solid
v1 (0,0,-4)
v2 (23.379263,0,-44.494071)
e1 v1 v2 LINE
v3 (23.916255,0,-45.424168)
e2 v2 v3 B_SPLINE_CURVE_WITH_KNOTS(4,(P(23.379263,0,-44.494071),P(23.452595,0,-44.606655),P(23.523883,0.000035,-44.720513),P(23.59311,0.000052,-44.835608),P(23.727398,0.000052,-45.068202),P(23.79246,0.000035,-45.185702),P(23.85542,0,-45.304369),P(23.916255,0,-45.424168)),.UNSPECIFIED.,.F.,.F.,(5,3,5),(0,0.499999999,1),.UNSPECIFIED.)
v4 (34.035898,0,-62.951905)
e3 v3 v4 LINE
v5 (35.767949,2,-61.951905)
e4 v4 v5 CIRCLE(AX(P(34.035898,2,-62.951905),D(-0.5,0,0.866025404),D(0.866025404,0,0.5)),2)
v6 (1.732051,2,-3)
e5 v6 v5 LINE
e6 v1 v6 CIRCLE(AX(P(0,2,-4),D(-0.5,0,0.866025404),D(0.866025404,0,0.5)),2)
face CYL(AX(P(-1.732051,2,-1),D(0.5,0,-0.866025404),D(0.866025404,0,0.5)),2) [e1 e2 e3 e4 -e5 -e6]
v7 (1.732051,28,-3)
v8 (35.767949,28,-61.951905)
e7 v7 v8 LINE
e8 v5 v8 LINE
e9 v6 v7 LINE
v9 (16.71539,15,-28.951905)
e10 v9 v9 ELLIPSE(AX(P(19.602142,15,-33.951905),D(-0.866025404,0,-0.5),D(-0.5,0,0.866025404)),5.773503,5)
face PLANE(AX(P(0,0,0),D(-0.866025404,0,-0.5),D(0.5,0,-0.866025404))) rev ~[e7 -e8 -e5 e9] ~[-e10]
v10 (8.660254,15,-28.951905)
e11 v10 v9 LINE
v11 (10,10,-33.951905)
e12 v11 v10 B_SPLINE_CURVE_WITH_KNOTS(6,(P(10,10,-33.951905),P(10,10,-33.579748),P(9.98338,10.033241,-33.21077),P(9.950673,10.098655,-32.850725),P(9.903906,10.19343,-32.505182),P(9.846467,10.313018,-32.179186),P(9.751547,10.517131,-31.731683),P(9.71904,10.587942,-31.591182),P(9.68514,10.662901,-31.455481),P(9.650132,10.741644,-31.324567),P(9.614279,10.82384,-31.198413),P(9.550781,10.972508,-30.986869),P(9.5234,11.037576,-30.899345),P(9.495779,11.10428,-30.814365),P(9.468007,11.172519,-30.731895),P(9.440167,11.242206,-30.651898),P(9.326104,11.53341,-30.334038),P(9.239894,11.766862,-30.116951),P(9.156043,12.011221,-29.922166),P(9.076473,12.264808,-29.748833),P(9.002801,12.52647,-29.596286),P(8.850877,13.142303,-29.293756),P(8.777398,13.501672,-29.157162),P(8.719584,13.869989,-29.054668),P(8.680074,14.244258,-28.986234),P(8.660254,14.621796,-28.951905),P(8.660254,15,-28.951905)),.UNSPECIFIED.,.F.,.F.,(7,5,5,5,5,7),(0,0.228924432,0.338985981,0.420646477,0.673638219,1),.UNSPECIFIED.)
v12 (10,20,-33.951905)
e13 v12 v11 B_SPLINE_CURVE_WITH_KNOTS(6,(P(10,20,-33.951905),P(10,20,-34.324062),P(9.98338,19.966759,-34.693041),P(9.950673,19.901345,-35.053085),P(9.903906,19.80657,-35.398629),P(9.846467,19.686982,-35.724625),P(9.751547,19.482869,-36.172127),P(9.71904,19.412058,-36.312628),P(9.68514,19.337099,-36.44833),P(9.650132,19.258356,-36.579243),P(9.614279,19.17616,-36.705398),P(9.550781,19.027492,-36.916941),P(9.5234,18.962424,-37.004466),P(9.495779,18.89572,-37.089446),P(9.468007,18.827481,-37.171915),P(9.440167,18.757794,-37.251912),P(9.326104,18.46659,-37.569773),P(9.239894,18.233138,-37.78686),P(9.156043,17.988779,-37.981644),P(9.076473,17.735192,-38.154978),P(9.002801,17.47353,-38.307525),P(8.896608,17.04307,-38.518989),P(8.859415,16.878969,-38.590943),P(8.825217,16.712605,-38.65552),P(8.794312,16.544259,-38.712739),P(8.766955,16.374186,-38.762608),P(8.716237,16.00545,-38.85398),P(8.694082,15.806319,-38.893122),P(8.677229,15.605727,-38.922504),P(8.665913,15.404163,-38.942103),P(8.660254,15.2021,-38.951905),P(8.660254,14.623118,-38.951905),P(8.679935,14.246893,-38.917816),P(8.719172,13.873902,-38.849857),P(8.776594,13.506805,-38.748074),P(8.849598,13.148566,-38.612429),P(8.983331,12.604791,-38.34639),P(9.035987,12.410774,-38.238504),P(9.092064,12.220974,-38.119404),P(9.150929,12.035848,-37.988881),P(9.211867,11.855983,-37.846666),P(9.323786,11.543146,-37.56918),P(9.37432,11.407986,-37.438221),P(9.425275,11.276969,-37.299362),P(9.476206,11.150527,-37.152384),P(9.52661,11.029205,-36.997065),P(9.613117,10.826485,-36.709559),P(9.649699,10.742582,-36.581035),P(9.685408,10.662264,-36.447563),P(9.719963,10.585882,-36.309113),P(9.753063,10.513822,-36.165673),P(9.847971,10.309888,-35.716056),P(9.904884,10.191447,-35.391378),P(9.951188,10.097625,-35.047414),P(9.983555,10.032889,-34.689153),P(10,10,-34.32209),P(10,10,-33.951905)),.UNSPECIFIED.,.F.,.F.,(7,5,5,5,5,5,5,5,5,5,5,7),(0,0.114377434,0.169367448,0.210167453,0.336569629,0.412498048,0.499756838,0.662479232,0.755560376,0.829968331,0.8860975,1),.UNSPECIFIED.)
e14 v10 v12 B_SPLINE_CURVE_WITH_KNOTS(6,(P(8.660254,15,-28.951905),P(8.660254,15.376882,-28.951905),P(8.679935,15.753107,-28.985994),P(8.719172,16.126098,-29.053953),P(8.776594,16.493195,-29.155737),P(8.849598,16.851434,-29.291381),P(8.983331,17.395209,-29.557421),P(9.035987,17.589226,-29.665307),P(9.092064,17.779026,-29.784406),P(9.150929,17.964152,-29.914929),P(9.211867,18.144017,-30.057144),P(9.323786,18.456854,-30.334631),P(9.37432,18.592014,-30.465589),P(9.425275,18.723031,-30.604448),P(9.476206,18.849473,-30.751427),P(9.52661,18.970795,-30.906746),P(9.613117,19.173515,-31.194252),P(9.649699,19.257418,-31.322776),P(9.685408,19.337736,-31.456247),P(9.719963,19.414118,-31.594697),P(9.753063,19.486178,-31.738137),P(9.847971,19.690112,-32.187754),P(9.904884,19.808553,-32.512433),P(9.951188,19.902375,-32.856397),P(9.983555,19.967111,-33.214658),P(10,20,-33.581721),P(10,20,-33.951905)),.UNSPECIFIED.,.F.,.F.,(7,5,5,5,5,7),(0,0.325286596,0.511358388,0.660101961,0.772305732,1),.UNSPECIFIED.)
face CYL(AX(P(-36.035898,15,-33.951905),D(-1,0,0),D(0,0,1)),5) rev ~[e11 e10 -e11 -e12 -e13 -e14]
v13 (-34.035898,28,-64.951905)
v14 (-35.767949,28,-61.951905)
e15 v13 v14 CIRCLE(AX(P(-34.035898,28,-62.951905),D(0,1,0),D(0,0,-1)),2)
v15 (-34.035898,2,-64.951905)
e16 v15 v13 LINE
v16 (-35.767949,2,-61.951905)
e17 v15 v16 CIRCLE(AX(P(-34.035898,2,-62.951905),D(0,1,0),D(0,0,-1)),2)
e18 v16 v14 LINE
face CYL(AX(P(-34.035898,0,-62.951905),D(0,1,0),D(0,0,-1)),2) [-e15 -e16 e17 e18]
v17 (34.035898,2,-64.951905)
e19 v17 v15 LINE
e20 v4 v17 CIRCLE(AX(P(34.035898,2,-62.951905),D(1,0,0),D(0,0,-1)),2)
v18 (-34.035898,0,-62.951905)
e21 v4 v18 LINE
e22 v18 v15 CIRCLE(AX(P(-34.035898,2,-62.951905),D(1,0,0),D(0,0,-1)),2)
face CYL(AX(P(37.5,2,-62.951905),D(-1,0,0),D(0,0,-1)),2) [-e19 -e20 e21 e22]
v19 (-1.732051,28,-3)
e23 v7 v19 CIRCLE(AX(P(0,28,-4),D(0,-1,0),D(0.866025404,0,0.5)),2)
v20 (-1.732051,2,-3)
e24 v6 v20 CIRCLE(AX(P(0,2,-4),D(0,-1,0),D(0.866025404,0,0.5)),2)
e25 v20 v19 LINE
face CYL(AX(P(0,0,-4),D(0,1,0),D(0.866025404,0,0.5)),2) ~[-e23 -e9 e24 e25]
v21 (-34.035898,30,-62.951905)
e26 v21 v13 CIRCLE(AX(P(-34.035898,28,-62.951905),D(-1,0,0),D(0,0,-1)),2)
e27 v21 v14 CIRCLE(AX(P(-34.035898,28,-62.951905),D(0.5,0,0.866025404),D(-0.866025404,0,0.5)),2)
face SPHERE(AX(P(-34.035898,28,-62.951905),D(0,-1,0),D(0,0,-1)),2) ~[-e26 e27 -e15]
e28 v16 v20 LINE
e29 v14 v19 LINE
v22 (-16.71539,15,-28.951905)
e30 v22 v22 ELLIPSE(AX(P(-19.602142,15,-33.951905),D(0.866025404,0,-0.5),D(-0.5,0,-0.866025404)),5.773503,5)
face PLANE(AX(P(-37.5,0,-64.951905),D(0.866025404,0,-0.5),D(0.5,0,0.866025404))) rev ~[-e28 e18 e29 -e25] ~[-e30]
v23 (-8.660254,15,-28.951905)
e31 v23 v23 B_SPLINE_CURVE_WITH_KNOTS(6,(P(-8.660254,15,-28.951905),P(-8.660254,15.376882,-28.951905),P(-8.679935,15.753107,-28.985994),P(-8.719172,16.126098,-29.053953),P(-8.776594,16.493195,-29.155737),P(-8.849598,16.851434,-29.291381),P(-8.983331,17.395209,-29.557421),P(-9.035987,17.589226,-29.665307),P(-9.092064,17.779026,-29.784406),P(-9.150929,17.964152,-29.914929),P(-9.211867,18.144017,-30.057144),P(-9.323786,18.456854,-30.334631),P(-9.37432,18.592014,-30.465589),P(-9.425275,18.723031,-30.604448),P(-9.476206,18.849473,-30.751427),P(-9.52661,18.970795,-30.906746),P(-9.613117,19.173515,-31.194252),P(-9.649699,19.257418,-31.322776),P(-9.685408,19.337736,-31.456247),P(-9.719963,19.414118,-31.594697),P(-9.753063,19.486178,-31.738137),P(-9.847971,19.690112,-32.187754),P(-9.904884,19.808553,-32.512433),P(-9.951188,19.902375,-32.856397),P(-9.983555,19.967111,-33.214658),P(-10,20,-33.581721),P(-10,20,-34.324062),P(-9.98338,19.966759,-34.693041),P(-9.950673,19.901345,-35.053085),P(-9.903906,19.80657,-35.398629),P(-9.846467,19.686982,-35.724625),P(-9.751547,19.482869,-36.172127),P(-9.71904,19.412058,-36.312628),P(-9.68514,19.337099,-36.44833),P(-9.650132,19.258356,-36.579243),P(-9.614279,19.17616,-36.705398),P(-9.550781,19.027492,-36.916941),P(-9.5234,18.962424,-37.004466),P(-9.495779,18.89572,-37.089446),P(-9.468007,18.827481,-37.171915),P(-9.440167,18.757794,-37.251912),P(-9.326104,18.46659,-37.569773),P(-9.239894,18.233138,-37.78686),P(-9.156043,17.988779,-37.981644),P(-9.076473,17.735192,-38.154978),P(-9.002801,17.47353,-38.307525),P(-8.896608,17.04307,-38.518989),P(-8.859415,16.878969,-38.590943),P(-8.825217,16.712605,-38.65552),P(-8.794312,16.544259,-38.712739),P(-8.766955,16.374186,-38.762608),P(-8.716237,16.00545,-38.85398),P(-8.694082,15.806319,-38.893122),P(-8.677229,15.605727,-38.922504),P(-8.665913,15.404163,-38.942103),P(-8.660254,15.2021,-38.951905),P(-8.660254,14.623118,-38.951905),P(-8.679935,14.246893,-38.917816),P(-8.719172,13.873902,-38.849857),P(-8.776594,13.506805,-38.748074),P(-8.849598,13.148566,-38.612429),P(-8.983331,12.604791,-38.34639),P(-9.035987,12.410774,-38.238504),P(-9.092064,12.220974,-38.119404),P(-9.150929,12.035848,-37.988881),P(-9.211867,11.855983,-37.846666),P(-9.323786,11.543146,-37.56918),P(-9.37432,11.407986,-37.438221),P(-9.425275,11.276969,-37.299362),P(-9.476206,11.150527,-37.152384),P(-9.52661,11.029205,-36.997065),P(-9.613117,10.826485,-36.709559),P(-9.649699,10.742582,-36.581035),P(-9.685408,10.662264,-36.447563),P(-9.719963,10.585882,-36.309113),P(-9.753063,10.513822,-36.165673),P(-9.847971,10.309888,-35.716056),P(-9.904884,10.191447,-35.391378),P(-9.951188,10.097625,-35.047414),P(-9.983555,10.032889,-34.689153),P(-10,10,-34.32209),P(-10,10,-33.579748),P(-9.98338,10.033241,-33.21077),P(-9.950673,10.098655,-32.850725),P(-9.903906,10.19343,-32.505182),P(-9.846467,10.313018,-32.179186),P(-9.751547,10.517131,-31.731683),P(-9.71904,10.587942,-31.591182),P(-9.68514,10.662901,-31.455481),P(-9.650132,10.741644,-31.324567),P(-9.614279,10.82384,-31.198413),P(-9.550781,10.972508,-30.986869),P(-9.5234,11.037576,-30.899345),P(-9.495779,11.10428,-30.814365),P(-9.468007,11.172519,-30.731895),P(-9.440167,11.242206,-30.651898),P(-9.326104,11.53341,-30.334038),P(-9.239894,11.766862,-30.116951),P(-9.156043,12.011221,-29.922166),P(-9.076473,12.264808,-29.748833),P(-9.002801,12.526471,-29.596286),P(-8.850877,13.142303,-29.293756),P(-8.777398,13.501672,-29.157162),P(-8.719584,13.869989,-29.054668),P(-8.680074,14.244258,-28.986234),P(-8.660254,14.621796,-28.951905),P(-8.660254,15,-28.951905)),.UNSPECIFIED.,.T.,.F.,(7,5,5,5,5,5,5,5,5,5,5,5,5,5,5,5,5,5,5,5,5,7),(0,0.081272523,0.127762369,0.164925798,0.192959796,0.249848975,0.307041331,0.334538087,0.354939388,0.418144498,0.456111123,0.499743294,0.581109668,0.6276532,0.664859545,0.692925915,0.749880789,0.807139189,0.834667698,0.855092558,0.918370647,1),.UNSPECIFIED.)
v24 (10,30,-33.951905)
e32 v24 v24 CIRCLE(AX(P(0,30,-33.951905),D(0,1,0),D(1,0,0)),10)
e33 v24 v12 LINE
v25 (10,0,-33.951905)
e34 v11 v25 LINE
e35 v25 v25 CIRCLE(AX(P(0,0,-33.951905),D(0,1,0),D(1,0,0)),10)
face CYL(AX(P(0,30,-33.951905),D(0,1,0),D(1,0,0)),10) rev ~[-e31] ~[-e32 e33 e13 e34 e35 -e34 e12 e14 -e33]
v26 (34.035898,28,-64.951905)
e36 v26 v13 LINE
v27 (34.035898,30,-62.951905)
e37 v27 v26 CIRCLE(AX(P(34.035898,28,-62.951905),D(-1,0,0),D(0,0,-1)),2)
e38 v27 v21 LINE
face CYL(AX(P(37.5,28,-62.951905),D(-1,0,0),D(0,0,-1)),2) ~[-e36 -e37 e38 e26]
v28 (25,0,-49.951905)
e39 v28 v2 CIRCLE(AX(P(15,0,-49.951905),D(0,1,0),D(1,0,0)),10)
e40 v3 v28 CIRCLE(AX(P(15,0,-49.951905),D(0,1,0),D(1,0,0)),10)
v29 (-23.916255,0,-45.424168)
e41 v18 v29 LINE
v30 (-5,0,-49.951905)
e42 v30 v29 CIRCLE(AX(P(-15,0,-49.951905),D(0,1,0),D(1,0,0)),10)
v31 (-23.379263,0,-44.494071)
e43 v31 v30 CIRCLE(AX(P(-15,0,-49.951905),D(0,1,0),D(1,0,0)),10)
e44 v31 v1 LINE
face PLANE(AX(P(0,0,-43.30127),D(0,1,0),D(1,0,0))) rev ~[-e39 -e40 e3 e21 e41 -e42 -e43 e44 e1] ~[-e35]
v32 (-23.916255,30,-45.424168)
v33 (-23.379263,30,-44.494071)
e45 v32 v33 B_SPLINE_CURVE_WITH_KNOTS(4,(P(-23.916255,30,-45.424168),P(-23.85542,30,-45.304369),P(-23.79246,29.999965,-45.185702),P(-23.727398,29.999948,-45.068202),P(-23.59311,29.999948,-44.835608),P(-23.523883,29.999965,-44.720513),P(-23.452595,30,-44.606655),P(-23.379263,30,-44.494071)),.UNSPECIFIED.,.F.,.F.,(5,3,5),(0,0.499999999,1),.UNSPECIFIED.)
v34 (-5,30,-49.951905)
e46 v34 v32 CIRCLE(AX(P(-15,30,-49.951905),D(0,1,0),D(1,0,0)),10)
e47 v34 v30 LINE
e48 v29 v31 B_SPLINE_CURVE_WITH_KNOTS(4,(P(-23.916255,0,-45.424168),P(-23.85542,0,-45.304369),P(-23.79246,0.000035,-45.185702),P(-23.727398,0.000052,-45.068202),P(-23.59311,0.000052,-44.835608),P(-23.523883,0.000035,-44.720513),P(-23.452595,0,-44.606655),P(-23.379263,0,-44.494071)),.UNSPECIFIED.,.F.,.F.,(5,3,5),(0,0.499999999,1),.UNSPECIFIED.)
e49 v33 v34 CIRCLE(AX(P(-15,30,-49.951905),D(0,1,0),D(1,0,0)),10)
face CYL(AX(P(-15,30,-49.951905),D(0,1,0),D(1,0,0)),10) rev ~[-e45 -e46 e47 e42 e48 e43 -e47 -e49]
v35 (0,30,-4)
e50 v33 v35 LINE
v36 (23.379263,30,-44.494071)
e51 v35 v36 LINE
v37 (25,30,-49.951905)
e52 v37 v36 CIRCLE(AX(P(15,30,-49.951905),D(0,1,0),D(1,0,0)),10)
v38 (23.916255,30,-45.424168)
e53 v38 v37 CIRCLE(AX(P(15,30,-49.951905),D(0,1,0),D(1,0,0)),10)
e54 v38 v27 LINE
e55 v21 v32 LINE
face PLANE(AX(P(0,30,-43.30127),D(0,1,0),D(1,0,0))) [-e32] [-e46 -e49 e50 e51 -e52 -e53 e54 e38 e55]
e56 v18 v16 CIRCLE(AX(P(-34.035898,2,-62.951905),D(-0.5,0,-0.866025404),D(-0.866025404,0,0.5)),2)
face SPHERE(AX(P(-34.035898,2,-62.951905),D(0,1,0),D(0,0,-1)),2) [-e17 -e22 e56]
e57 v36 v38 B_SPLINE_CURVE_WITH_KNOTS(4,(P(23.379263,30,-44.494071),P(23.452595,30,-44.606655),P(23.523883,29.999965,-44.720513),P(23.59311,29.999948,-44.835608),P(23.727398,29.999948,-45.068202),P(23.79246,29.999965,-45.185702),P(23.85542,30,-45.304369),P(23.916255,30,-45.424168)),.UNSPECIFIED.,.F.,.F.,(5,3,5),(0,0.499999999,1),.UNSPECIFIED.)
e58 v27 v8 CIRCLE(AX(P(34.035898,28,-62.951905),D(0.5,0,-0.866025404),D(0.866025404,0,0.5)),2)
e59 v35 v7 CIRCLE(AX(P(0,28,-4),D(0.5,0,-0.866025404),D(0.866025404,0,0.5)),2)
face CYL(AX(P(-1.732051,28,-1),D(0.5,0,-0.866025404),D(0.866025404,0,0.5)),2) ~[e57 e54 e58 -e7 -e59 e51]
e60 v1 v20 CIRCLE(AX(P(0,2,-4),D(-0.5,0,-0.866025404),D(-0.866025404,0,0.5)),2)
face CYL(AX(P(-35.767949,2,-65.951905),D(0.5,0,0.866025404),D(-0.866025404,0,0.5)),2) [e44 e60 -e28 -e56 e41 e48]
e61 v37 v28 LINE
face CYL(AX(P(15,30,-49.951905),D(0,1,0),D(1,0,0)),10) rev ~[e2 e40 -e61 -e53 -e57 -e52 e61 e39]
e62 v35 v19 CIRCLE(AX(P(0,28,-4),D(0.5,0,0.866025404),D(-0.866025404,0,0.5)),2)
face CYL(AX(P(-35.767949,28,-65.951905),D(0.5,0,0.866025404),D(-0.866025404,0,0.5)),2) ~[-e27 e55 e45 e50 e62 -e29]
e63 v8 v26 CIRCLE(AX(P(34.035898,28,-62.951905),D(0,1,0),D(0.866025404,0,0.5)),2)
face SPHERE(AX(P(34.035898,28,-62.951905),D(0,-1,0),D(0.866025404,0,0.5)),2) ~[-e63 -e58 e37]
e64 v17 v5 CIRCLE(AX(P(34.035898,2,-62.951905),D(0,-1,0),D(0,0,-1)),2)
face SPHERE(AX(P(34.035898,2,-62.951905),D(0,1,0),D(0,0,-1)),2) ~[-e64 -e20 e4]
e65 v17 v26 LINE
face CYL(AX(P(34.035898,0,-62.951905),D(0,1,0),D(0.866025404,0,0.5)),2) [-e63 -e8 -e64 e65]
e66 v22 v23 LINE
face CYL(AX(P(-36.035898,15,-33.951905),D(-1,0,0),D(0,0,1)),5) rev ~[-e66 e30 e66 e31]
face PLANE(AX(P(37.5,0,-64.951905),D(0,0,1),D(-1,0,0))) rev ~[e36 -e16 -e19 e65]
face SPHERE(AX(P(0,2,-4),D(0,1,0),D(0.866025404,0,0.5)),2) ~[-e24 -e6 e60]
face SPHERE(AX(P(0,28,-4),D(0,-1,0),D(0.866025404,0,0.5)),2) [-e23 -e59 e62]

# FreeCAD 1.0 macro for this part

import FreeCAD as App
import Part
import Sketcher

V = App.Vector
Q = App.Units.Quantity


def add_polygon(sketch, points):
    """Adds a closed chain of lines whose ends are joined by coincident constraints."""
    first, n = sketch.GeometryCount, len(points)
    for a, b in zip(points, points[1:] + points[:1]):
        sketch.addGeometry(Part.LineSegment(App.Vector(*a, 0), App.Vector(*b, 0)), False)
    for i in range(n):
        sketch.addConstraint(Sketcher.Constraint("Coincident", first + i, 2, first + (i + 1) % n, 1))

doc = App.newDocument("Part")
params = doc.addObject("Spreadsheet::Sheet", "Params")
for row, (alias, value) in enumerate([
    ("sketch1_width", "75 mm"),
    ("pad1_length", "30 mm"),
    ("fillet_radius", "2 mm"),
    ("sketch2_diameter", "20 mm"),
    ("sketch3_diameter", "10 mm"),
], start=1):
    params.set(f"A{row}", alias)
    params.set(f"B{row}", "=" + value)
    params.setAlias(f"B{row}", alias)

body = doc.addObject("PartDesign::Body", "Body")

# Sketch on XZ plane
sketch1 = body.newObject("Sketcher::SketchObject", "Sketch")
sketch1.AttachmentSupport = (doc.getObject("XZ_Plane"), [""])
sketch1.MapMode = "FlatFace"
add_polygon(sketch1, [(0, 0), (37.5, -64.951905), (-37.5, -64.951905)])  # lines 0-2
sketch1.addConstraint(Sketcher.Constraint("Horizontal", 1))
sketch1.addConstraint(Sketcher.Constraint("Coincident", 2, 2, -1, 1))
sketch1.addConstraint(Sketcher.Constraint("Equal", 0, 2))
sketch1.addConstraint(Sketcher.Constraint("DistanceX", 1, 2, 1, 1, 75.0))
sketch1.addConstraint(Sketcher.Constraint("Angle", 0, Q("-60 deg")))
sketch1.setExpression("Constraints[6]", "Params.sketch1_width")
pad1 = body.newObject("PartDesign::Pad", "Pad")
pad1.Profile = sketch1
pad1.setExpression("Length", "Params.pad1_length")
pad1.Reversed = True
doc.recompute()

fillet = body.newObject("PartDesign::Fillet", "Fillet")
fillet.Base = (pad1, ["Edge1"])
fillet.UseAllEdges = True
fillet.setExpression("Radius", "Params.fillet_radius")

# Sketch on XZ plane
sketch2 = body.newObject("Sketcher::SketchObject", "Sketch001")
sketch2.AttachmentSupport = (doc.getObject("XZ_Plane"), [""])
sketch2.MapMode = "FlatFace"
sketch2.AttachmentOffset = App.Placement(V(0, 0, -30), App.Rotation())
sketch2.addGeometry(Part.Circle(V(-15, -49.951905, 0), V(0, 0, 1), 10), False)
sketch2.addGeometry(Part.Circle(V(15, -49.951905, 0), V(0, 0, 1), 10), False)
sketch2.addGeometry(Part.Circle(V(0, -33.951905, 0), V(0, 0, 1), 10), False)
sketch2.addConstraint(Sketcher.Constraint("Equal", 0, 1))
sketch2.addConstraint(Sketcher.Constraint("Equal", 1, 2))
sketch2.addConstraint(Sketcher.Constraint("Symmetric", 0, 3, 1, 3, -2))
sketch2.addConstraint(Sketcher.Constraint("PointOnObject", 2, 3, -2))
sketch2.addConstraint(Sketcher.Constraint("Diameter", 0, 20.0))
sketch2.addConstraint(Sketcher.Constraint("DistanceX", 0, 3, -1, 1, 15.0))
sketch2.addConstraint(Sketcher.Constraint("DistanceY", 0, 3, 2, 3, 16.0))
sketch2.addConstraint(Sketcher.Constraint("DistanceY", 0, 3, -1, 1, 49.951905))
sketch2.setExpression("Constraints[4]", "Params.sketch2_diameter")
pocket1 = body.newObject("PartDesign::Pocket", "Pocket")
pocket1.Profile = sketch2
pocket1.Type = "ThroughAll"
pocket1.Reversed = True

# Sketch on YZ plane
sketch3 = body.newObject("Sketcher::SketchObject", "Sketch002")
sketch3.AttachmentSupport = (doc.getObject("YZ_Plane"), [""])
sketch3.MapMode = "FlatFace"
sketch3.AttachmentOffset = App.Placement(V(0, 0, -36.035898), App.Rotation())
sketch3.addGeometry(Part.Circle(V(15, -33.951905, 0), V(0, 0, 1), 5), False)
sketch3.addConstraint(Sketcher.Constraint("Diameter", 0, 10.0))
sketch3.addConstraint(Sketcher.Constraint("DistanceX", -1, 1, 0, 3, 15.0))
sketch3.addConstraint(Sketcher.Constraint("DistanceY", 0, 3, -1, 1, 33.951905))
sketch3.setExpression("Constraints[0]", "Params.sketch3_diameter")
pocket2 = body.newObject("PartDesign::Pocket", "Pocket001")
pocket2.Profile = sketch3
pocket2.Type = "ThroughAll"
pocket2.Reversed = True

doc.recompute()
